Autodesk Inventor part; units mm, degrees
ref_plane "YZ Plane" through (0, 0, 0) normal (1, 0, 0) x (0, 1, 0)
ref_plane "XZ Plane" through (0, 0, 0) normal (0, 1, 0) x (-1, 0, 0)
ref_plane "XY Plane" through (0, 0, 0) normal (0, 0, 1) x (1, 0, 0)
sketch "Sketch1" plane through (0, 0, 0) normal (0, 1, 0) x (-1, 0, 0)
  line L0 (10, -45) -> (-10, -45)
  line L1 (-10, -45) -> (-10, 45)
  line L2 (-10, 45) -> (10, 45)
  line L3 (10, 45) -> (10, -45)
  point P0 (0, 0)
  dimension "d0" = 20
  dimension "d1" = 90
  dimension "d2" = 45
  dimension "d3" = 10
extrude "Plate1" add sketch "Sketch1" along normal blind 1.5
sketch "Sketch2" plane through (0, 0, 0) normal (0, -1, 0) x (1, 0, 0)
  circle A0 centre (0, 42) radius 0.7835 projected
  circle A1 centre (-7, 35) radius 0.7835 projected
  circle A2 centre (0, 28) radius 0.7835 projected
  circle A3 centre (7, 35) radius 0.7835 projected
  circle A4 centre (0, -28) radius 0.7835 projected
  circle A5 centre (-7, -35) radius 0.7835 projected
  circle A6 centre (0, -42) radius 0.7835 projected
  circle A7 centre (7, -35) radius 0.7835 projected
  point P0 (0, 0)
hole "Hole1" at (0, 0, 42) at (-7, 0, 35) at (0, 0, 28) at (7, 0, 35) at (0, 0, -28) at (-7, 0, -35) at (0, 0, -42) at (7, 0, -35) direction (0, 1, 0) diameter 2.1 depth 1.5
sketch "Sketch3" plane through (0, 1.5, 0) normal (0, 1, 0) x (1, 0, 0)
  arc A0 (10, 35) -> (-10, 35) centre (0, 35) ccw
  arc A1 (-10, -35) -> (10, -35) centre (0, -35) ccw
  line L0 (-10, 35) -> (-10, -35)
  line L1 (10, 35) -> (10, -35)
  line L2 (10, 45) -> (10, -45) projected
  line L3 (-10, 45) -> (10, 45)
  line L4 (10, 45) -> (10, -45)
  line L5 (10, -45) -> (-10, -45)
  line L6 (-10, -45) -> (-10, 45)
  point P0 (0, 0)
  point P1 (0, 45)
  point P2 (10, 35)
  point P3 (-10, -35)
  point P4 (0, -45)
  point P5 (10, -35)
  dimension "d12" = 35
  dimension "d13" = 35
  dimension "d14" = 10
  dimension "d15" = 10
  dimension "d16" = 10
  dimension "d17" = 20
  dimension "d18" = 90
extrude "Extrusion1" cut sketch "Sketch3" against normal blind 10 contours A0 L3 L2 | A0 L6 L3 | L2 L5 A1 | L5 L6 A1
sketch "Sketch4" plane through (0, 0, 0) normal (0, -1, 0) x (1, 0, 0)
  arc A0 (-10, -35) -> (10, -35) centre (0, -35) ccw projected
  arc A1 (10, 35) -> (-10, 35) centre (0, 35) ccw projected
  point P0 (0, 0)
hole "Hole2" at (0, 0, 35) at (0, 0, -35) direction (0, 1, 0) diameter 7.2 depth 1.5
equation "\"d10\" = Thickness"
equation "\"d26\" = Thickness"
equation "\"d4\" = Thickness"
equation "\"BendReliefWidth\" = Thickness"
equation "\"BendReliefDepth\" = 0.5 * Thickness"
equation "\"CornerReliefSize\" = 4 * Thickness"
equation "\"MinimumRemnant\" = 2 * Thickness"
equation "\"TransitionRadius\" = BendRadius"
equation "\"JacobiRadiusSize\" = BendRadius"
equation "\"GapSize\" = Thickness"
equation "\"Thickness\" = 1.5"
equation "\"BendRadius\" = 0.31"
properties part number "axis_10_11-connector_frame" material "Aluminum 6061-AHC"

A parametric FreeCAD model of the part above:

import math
import FreeCAD as App
import Part
import Sketcher

V = App.Vector
Q = App.Units.Quantity

doc = App.newDocument("Part")
body = doc.addObject("PartDesign::Body", "Body")

# Sketch on XZ plane
sketch1 = body.newObject("Sketcher::SketchObject", "Sketch")
sketch1.AttachmentSupport = (doc.getObject("XZ_Plane"), [""])
sketch1.MapMode = "FlatFace"
sketch1.addGeometry([
    Part.LineSegment(V(10, -45, 0), V(-10, -45, 0)),
    Part.LineSegment(V(-10, -45, 0), V(-10, 45, 0)),
    Part.LineSegment(V(-10, 45, 0), V(10, 45, 0)),
    Part.LineSegment(V(10, 45, 0), V(10, -45, 0)),
], False)
sketch1.addConstraint([
    Sketcher.Constraint("Coincident", 0, 2, 1, 1),
    Sketcher.Constraint("Coincident", 1, 2, 2, 1),
    Sketcher.Constraint("Coincident", 2, 2, 3, 1),
    Sketcher.Constraint("Coincident", 3, 2, 0, 1),
    Sketcher.Constraint("Horizontal", 0),
    Sketcher.Constraint("Vertical", 1),
    Sketcher.Constraint("Horizontal", 2),
    Sketcher.Constraint("Vertical", 3),
    Sketcher.Constraint("Symmetric", 0, 2, 2, 2, -1, 1),
    Sketcher.Constraint("DistanceX", 0, 2, 0, 1, Q("20 mm")),
    Sketcher.Constraint("DistanceY", 1, 1, 1, 2, Q("90 mm")),
])
pad1 = body.newObject("PartDesign::Pad", "Pad")
pad1.Profile = sketch1
pad1.Length = 1.5
pad1.Reversed = True

# Sketch on XZ plane
sketch2 = body.newObject("Sketcher::SketchObject", "Sketch001")
sketch2.AttachmentSupport = (doc.getObject("XZ_Plane"), [""])
sketch2.MapMode = "FlatFace"
sketch2.addGeometry([
    Part.Circle(V(0, 42, 0), V(0, 0, 1), 1.1),  # 0
    Part.Circle(V(-7, 35, 0), V(0, 0, 1), 1.1),  # 1
    Part.Circle(V(0, 28, 0), V(0, 0, 1), 1.1),  # 2
    Part.Circle(V(7, 35, 0), V(0, 0, 1), 1.1),  # 3
    Part.Circle(V(0, -28, 0), V(0, 0, 1), 1.1),  # 4
    Part.Circle(V(-7, -35, 0), V(0, 0, 1), 1.1),  # 5
    Part.Circle(V(0, -42, 0), V(0, 0, 1), 1.1),  # 6
    Part.Circle(V(7, -35, 0), V(0, 0, 1), 1.1),  # 7
], False)
sketch2.addConstraint([
    Sketcher.Constraint("Equal", 0, 1),
    Sketcher.Constraint("Equal", 1, 2),
    Sketcher.Constraint("Equal", 2, 3),
    Sketcher.Constraint("Equal", 3, 4),
    Sketcher.Constraint("Equal", 4, 5),
    Sketcher.Constraint("Equal", 5, 6),
    Sketcher.Constraint("Equal", 6, 7),
    Sketcher.Constraint("Symmetric", 2, 3, 4, 3, -1, 1),
    Sketcher.Constraint("Symmetric", 3, 3, 5, 3, -1, 1),
    Sketcher.Constraint("Symmetric", 0, 3, 6, 3, -1, 1),
    Sketcher.Constraint("Symmetric", 1, 3, 7, 3, -1, 1),
    Sketcher.Constraint("Symmetric", 1, 3, 3, 3, -2),
    Sketcher.Constraint("PointOnObject", 0, 3, -2),
    Sketcher.Constraint("PointOnObject", 2, 3, -2),
    Sketcher.Constraint("Diameter", 0, Q("2.1 mm")),
    Sketcher.Constraint("DistanceY", -1, 1, 0, 3, Q("42 mm")),
    Sketcher.Constraint("DistanceX", 1, 3, -1, 1, Q("7 mm")),
    Sketcher.Constraint("DistanceY", -1, 1, 1, 3, Q("35 mm")),
    Sketcher.Constraint("DistanceY", -1, 1, 2, 3, Q("28 mm")),
])
doc.recompute()
hole = body.newObject("PartDesign::Hole", "Hole")
hole.Profile = sketch2
hole.ThreadType = "None"
hole.Diameter = 2.1
hole.DepthType = "Dimension"
hole.Depth = 1.5
hole.DrillPoint = "Flat"

# Sketch on XZ plane
sketch3 = body.newObject("Sketcher::SketchObject", "Sketch002")
sketch3.AttachmentSupport = (doc.getObject("XZ_Plane"), [""])
sketch3.MapMode = "FlatFace"
sketch3.AttachmentOffset = App.Placement(V(0, 0, -1.5), App.Rotation())
sketch3.addGeometry([
    Part.ArcOfCircle(Part.Circle(V(0, -35, 0), V(0, 0, 1), 10), math.radians(-90), math.radians(0)),  # 0
    Part.LineSegment(V(10, -35, 0), V(10, -45, 0)),  # 1
    Part.LineSegment(V(10, -45, 0), V(0, -45, 0)),  # 2
    Part.ArcOfCircle(Part.Circle(V(0, -35, 0), V(0, 0, 1), 10), math.radians(180), math.radians(270)),  # 3
    Part.LineSegment(V(0, -45, 0), V(-10, -45, 0)),  # 4
    Part.LineSegment(V(-10, -45, 0), V(-10, -35, 0)),  # 5
    Part.LineSegment(V(10, 45, 0), V(10, 35, 0)),  # 6
    Part.ArcOfCircle(Part.Circle(V(0, 35, 0), V(0, 0, 1), 10), math.radians(0), math.radians(90)),  # 7
    Part.LineSegment(V(0, 45, 0), V(10, 45, 0)),  # 8
    Part.LineSegment(V(-10, 45, 0), V(0, 45, 0)),  # 9
    Part.ArcOfCircle(Part.Circle(V(0, 35, 0), V(0, 0, 1), 10), math.radians(90), math.radians(180)),  # 10
    Part.LineSegment(V(-10, 35, 0), V(-10, 45, 0)),  # 11
], False)
sketch3.addConstraint([
    Sketcher.Constraint("Tangent", 0, 2, 1, 1),
    Sketcher.Constraint("Coincident", 1, 2, 2, 1),
    Sketcher.Constraint("Tangent", 2, 2, 0, 1),
    Sketcher.Constraint("Tangent", 3, 2, 4, 1),
    Sketcher.Constraint("Coincident", 4, 2, 5, 1),
    Sketcher.Constraint("Tangent", 5, 2, 3, 1),
    Sketcher.Constraint("Tangent", 6, 2, 7, 1),
    Sketcher.Constraint("Tangent", 7, 2, 8, 1),
    Sketcher.Constraint("Coincident", 8, 2, 6, 1),
    Sketcher.Constraint("Tangent", 9, 2, 10, 1),
    Sketcher.Constraint("Tangent", 10, 2, 11, 1),
    Sketcher.Constraint("Coincident", 11, 2, 9, 1),
    Sketcher.Constraint("Vertical", 1),
    Sketcher.Constraint("Horizontal", 2),
    Sketcher.Constraint("Horizontal", 4),
    Sketcher.Constraint("Vertical", 5),
    Sketcher.Constraint("Vertical", 6),
    Sketcher.Constraint("Horizontal", 8),
    Sketcher.Constraint("Horizontal", 9),
    Sketcher.Constraint("Vertical", 11),
    Sketcher.Constraint("Coincident", 3, 3, 0, 3),
    Sketcher.Constraint("Coincident", 10, 3, 7, 3),
    Sketcher.Constraint("Equal", 0, 3),
    Sketcher.Constraint("Equal", 3, 7),
    Sketcher.Constraint("Equal", 7, 10),
    Sketcher.Constraint("Symmetric", 0, 3, 7, 3, -1, 1),
    Sketcher.Constraint("PointOnObject", 0, 3, -2),
    Sketcher.Constraint("Radius", 0, Q("10 mm")),
    Sketcher.Constraint("DistanceY", 0, 3, -1, 1, Q("35 mm")),
])
pocket1 = body.newObject("PartDesign::Pocket", "Pocket")
pocket1.Profile = sketch3
pocket1.Length = 10
pocket1.Reversed = True

# Sketch on XZ plane
sketch4 = body.newObject("Sketcher::SketchObject", "Sketch003")
sketch4.AttachmentSupport = (doc.getObject("XZ_Plane"), [""])
sketch4.MapMode = "FlatFace"
sketch4.addGeometry([
    Part.Circle(V(0, 35, 0), V(0, 0, 1), 3.6),
    Part.Circle(V(0, -35, 0), V(0, 0, 1), 3.6),
], False)
sketch4.addConstraint([
    Sketcher.Constraint("Equal", 0, 1),
    Sketcher.Constraint("Symmetric", 0, 3, 1, 3, -1, 1),
    Sketcher.Constraint("PointOnObject", 0, 3, -2),
    Sketcher.Constraint("Diameter", 0, Q("7.2 mm")),
    Sketcher.Constraint("DistanceY", -1, 1, 0, 3, Q("35 mm")),
])
doc.recompute()
hole2 = body.newObject("PartDesign::Hole", "Hole001")
hole2.Profile = sketch4
hole2.ThreadType = "None"
hole2.Diameter = 7.2
hole2.DepthType = "Dimension"
hole2.Depth = 1.5
hole2.DrillPoint = "Flat"

doc.recompute()
